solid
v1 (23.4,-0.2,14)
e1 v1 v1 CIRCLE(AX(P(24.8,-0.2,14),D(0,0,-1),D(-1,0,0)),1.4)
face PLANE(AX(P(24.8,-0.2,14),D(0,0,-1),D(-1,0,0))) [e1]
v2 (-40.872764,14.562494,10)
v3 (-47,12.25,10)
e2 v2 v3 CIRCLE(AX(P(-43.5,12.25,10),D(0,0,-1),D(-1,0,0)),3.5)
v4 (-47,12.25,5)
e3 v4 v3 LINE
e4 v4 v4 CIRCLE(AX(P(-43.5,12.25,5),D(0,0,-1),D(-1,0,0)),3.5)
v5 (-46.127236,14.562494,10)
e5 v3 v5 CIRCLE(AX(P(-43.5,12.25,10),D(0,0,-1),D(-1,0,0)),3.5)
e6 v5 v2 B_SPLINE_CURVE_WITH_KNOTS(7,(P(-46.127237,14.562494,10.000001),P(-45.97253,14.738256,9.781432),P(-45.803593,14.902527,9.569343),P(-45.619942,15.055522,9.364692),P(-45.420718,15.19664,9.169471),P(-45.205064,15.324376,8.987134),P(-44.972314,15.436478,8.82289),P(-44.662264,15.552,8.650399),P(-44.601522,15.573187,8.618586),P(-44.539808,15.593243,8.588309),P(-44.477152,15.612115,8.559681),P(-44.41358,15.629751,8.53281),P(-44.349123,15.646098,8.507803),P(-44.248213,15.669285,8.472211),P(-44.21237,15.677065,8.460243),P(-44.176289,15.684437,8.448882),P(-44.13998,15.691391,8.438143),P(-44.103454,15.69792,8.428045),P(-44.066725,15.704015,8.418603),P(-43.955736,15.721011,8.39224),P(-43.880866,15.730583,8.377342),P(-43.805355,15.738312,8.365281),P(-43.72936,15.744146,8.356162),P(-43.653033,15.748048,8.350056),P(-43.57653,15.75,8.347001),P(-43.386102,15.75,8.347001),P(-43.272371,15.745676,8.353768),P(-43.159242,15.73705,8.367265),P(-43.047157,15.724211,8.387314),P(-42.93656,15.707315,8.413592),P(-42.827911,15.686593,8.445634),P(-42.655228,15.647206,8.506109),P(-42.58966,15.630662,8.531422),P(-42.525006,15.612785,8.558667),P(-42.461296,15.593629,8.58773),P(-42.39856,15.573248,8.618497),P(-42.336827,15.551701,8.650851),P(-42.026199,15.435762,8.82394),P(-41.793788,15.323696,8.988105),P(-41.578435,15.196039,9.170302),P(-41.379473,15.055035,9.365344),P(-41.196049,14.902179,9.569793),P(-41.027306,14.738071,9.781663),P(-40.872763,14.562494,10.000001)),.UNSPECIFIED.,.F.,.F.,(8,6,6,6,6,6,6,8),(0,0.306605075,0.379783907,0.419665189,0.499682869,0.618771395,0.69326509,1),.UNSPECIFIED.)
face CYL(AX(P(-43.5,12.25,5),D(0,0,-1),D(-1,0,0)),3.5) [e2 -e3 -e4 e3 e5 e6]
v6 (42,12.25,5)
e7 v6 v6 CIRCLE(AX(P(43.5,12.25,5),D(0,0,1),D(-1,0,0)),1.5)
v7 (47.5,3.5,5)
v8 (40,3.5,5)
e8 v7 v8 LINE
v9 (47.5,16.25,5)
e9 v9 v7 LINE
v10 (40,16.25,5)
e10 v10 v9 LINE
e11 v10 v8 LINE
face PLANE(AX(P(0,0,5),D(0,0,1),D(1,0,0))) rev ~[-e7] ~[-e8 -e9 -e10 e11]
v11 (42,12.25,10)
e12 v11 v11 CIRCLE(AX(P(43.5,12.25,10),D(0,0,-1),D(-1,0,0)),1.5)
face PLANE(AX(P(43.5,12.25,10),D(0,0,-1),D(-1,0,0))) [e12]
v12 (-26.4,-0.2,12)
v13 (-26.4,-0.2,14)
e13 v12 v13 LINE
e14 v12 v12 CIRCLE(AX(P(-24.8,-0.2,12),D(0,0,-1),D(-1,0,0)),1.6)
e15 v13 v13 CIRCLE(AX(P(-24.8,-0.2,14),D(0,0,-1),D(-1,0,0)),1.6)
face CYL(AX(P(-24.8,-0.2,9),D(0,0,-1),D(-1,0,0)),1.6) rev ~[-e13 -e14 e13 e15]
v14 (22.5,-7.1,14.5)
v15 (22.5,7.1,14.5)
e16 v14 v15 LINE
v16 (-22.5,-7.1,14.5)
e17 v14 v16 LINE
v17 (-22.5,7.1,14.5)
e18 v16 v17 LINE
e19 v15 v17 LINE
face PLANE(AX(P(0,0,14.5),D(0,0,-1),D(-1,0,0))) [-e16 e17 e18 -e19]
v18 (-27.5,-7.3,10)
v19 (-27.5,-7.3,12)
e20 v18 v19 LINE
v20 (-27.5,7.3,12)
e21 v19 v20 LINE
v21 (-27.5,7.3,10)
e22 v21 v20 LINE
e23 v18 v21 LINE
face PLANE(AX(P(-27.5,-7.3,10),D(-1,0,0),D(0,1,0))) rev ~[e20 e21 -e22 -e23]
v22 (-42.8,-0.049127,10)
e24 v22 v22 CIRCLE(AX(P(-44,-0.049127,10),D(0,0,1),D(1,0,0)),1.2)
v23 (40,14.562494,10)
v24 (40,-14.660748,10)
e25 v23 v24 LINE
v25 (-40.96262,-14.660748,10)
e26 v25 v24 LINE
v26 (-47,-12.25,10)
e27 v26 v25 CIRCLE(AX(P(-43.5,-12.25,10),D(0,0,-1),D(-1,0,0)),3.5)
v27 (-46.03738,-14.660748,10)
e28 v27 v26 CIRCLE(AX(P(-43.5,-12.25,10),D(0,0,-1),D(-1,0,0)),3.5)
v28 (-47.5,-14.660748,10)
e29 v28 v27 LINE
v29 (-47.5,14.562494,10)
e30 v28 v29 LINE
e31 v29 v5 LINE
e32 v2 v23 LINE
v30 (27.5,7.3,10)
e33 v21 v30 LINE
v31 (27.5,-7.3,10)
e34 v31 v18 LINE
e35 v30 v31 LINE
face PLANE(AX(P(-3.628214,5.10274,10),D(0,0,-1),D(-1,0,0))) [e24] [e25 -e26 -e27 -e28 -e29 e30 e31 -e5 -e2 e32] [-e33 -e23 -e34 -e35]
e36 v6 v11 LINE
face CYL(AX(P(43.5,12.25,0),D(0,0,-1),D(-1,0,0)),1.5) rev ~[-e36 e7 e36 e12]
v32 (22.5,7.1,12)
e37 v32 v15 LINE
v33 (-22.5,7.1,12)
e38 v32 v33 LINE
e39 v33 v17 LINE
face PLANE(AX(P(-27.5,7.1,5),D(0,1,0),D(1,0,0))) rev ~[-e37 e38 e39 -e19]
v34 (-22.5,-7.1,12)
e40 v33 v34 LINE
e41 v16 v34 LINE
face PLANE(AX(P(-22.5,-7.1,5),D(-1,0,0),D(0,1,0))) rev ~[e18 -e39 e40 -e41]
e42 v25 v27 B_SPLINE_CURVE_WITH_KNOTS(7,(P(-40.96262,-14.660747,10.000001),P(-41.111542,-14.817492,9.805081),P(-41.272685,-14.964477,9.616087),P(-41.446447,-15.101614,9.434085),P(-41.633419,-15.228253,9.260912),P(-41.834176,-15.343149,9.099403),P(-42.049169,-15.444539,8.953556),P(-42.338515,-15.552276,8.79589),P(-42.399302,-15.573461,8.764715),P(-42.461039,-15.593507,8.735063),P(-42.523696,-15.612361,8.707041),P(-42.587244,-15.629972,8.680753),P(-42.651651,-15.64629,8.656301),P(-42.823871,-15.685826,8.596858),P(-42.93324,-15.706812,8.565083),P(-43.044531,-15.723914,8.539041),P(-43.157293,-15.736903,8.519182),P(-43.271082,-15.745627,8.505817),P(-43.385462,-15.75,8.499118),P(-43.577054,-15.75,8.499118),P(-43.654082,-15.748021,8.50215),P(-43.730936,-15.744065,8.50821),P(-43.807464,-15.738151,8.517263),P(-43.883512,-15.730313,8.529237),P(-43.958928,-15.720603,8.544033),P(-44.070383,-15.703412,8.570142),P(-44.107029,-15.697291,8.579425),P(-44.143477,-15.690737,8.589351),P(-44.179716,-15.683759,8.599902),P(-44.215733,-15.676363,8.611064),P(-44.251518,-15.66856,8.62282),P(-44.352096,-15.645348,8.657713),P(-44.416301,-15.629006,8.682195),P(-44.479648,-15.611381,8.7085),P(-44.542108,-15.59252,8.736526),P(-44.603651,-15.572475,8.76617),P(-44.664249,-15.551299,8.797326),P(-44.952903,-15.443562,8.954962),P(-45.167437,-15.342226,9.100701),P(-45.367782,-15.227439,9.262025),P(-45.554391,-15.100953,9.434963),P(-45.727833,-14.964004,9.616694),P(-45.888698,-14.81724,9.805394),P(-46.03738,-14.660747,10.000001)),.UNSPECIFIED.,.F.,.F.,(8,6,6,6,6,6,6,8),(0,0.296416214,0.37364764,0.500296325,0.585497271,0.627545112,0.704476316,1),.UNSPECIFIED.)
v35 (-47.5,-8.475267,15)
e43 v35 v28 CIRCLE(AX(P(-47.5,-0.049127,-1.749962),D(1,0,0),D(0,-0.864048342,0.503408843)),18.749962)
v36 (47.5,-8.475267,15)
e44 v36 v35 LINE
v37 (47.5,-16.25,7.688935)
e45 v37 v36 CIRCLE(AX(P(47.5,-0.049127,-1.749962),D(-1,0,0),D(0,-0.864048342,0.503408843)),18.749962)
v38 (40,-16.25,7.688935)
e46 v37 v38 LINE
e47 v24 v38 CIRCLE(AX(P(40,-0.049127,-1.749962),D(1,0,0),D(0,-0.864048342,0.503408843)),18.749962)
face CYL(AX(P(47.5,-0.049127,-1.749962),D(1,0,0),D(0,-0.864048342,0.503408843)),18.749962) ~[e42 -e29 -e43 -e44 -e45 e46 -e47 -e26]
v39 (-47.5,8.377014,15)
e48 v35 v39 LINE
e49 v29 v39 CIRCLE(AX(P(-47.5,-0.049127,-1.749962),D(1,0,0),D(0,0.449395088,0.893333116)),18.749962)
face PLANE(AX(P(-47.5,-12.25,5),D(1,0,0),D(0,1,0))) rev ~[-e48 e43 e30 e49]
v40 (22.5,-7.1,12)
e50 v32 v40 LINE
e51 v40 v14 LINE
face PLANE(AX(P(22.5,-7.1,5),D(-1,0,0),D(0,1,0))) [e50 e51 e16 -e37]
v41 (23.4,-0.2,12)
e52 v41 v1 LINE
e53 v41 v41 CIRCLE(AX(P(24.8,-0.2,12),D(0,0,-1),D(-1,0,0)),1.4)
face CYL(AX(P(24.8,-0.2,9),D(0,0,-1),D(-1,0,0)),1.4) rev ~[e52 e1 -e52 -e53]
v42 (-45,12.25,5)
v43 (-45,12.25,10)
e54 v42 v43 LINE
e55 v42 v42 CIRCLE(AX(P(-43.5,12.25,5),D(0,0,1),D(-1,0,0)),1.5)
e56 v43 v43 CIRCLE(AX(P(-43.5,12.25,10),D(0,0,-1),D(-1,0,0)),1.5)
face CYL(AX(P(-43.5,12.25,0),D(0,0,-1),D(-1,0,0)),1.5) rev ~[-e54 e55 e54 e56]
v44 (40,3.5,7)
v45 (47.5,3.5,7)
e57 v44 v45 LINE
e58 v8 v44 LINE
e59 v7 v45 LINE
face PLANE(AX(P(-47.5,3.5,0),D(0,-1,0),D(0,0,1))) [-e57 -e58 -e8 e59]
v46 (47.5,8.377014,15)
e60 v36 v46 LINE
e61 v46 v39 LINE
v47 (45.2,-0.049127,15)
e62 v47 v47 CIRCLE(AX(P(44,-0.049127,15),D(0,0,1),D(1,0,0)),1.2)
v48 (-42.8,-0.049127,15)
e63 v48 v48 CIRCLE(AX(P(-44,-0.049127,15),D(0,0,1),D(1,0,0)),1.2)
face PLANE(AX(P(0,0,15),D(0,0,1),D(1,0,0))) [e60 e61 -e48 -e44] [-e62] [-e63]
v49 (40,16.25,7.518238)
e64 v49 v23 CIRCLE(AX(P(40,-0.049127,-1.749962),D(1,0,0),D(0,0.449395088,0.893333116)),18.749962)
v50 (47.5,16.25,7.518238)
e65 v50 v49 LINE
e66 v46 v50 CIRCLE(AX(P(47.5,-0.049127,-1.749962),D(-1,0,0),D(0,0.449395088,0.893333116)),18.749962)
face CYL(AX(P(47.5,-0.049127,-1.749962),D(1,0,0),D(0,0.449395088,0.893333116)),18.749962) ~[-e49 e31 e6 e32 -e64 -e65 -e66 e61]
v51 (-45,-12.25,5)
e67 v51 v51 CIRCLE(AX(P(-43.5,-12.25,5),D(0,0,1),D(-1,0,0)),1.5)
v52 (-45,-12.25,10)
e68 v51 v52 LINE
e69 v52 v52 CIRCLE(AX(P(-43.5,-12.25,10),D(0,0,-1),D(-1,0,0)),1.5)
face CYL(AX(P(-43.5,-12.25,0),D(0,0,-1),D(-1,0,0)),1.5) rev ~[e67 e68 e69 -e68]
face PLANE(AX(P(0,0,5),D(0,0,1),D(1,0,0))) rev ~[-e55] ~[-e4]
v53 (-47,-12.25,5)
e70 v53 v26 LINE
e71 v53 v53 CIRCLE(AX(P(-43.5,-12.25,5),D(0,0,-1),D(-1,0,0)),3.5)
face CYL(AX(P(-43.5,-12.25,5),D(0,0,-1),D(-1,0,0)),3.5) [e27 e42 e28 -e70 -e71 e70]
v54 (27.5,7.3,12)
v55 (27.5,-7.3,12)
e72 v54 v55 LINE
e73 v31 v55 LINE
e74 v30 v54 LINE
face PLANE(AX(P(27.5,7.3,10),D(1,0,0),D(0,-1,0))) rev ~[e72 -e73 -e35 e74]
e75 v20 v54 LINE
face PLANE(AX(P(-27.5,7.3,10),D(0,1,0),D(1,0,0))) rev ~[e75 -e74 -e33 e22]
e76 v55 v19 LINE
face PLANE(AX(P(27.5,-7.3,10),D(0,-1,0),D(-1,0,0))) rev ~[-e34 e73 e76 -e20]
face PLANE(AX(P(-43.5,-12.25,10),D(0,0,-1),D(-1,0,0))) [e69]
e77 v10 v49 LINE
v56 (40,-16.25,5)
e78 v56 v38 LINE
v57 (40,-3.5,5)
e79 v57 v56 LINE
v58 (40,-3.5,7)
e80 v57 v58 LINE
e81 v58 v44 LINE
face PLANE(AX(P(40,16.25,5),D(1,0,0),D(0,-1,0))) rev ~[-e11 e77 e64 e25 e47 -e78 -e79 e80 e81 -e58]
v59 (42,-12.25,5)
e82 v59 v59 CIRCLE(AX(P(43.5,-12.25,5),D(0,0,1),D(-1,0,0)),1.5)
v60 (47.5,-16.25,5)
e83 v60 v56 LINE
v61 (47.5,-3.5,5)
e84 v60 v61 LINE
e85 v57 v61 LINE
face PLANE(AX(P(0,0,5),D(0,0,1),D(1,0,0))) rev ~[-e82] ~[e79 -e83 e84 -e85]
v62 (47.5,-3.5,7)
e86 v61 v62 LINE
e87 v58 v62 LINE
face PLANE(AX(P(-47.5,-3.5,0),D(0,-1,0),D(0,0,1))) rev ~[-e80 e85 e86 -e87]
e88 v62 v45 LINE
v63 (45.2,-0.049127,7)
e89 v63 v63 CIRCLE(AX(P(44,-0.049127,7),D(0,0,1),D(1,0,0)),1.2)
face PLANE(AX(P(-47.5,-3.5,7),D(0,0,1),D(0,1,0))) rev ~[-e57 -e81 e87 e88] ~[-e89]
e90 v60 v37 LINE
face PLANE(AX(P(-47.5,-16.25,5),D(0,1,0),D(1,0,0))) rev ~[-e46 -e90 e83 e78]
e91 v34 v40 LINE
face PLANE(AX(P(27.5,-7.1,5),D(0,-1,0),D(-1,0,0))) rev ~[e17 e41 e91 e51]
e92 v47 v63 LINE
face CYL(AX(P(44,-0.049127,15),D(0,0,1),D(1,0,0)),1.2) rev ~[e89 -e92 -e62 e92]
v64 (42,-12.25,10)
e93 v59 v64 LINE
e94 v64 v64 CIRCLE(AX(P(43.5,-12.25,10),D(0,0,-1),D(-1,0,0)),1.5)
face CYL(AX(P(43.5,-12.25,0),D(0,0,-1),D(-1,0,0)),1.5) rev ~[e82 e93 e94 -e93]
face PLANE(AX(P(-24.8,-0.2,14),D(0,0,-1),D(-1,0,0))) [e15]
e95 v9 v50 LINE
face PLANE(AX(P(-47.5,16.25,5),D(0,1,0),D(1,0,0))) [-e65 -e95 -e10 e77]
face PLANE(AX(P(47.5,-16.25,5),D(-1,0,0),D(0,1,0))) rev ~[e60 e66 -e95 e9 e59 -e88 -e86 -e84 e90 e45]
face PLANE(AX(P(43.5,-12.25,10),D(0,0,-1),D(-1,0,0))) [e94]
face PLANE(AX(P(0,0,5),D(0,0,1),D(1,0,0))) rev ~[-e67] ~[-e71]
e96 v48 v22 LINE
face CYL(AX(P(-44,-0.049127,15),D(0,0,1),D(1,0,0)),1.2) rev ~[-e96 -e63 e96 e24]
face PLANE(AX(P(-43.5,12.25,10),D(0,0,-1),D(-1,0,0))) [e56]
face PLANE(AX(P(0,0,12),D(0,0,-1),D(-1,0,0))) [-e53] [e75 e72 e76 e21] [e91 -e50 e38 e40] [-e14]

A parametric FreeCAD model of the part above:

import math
import FreeCAD as App
import Part
import Sketcher
from FreeCAD import Vector

doc = App.newDocument("Part")
body = doc.addObject("PartDesign::Body", "Body")

sketch1 = body.newObject("Sketcher::SketchObject", "Sketch")
sketch1.AttachmentSupport = (doc.getObject("XY_Plane"), [""])
sketch1.MapMode = "FlatFace"
sketch1.addGeometry([
    Part.Circle(Vector(-43.5, -12.25, 0), Vector(0, 0, 1), 4),
    Part.Circle(Vector(-43.5, -12.25, 0), Vector(0, 0, 1), 1.5),
], False)
sketch1.addConstraint([
    Sketcher.Constraint("Coincident", 1, 3, 0, 3),
    Sketcher.Constraint("Diameter", 0, 8.0),
    Sketcher.Constraint("Diameter", 1, 3.0),
    Sketcher.Constraint("DistanceX", 0, 3, -1, 1, 43.5),
    Sketcher.Constraint("DistanceY", 0, 3, -1, 1, 12.25),
])
pad1 = body.newObject("PartDesign::Pad", "Pad")
pad1.Profile = sketch1
pad1.Length = 5
body2 = doc.addObject("PartDesign::Body", "Body001")

sketch2 = body2.newObject("Sketcher::SketchObject", "Sketch001")
sketch2.AttachmentSupport = (doc.getObject("XY_Plane001"), [""])
sketch2.MapMode = "FlatFace"
sketch2.addGeometry([
    Part.Circle(Vector(-43.5, 12.25, 0), Vector(0, 0, 1), 4),
    Part.Circle(Vector(-43.5, 12.25, 0), Vector(0, 0, 1), 1.5),
], False)
sketch2.addConstraint([
    Sketcher.Constraint("Coincident", 1, 3, 0, 3),
    Sketcher.Constraint("Diameter", 0, 8.0),
    Sketcher.Constraint("Diameter", 1, 3.0),
    Sketcher.Constraint("DistanceX", 0, 3, -1, 1, 43.5),
    Sketcher.Constraint("DistanceY", -1, 1, 0, 3, 12.25),
])
pad2 = body2.newObject("PartDesign::Pad", "Pad001")
pad2.Profile = sketch2
pad2.Length = 5
body3 = doc.addObject("PartDesign::Body", "Body002")

sketch3 = body3.newObject("Sketcher::SketchObject", "Sketch002")
sketch3.AttachmentSupport = (doc.getObject("XY_Plane002"), [""])
sketch3.MapMode = "FlatFace"
sketch3.addGeometry([
    Part.Circle(Vector(43.5, -12.25, 0), Vector(0, 0, 1), 4),
    Part.Circle(Vector(43.5, -12.25, 0), Vector(0, 0, 1), 1.5),
], False)
sketch3.addConstraint([
    Sketcher.Constraint("Coincident", 1, 3, 0, 3),
    Sketcher.Constraint("Diameter", 0, 8.0),
    Sketcher.Constraint("Diameter", 1, 3.0),
    Sketcher.Constraint("DistanceX", -1, 1, 0, 3, 43.5),
    Sketcher.Constraint("DistanceY", 0, 3, -1, 1, 12.25),
])
pad3 = body3.newObject("PartDesign::Pad", "Pad002")
pad3.Profile = sketch3
pad3.Length = 5
body4 = doc.addObject("PartDesign::Body", "Body003")

sketch4 = body4.newObject("Sketcher::SketchObject", "Sketch003")
sketch4.AttachmentSupport = (doc.getObject("XY_Plane003"), [""])
sketch4.MapMode = "FlatFace"
sketch4.addGeometry([
    Part.Circle(Vector(43.5, 12.25, 0), Vector(0, 0, 1), 4),
    Part.Circle(Vector(43.5, 12.25, 0), Vector(0, 0, 1), 1.5),
], False)
sketch4.addConstraint([
    Sketcher.Constraint("Coincident", 1, 3, 0, 3),
    Sketcher.Constraint("Diameter", 0, 8.0),
    Sketcher.Constraint("Diameter", 1, 3.0),
    Sketcher.Constraint("DistanceX", -1, 1, 0, 3, 43.5),
    Sketcher.Constraint("DistanceY", -1, 1, 0, 3, 12.25),
])
pad4 = body4.newObject("PartDesign::Pad", "Pad003")
pad4.Profile = sketch4
pad4.Length = 5
body.AllowCompound = True
doc.recompute()

boolean = body.newObject("PartDesign::Boolean", "Boolean")
boolean.Type = "Fuse"
boolean.addObjects([body2])
doc.recompute()

boolean2 = body.newObject("PartDesign::Boolean", "Boolean001")
boolean2.Type = "Fuse"
boolean2.addObjects([body3])
doc.recompute()

boolean3 = body.newObject("PartDesign::Boolean", "Boolean002")
boolean3.Type = "Fuse"
boolean3.addObjects([body4])

sketch5 = body.newObject("Sketcher::SketchObject", "Sketch004")
sketch5.AttachmentSupport = (doc.getObject("XY_Plane"), [""])
sketch5.MapMode = "FlatFace"
sketch5.AttachmentOffset = App.Placement(Vector(0, 0, 5), App.Rotation())
sketch5.addGeometry([
    Part.LineSegment(Vector(-47.5, 16.25, 0), Vector(-47.5, -16.25, 0)),
    Part.LineSegment(Vector(-47.5, -16.25, 0), Vector(47.5, -16.25, 0)),
    Part.LineSegment(Vector(47.5, -16.25, 0), Vector(47.5, 16.25, 0)),
    Part.LineSegment(Vector(47.5, 16.25, 0), Vector(-47.5, 16.25, 0)),
], False)
sketch5.addConstraint([
    Sketcher.Constraint("Coincident", 0, 2, 1, 1),
    Sketcher.Constraint("Coincident", 1, 2, 2, 1),
    Sketcher.Constraint("Coincident", 2, 2, 3, 1),
    Sketcher.Constraint("Coincident", 3, 2, 0, 1),
    Sketcher.Constraint("Vertical", 0),
    Sketcher.Constraint("Horizontal", 1),
    Sketcher.Constraint("Vertical", 2),
    Sketcher.Constraint("Horizontal", 3),
    Sketcher.Constraint("Symmetric", 0, 2, 2, 2, -1, 1),
    Sketcher.Constraint("DistanceX", 1, 1, 1, 2, 95.0),
    Sketcher.Constraint("DistanceY", 0, 2, 0, 1, 32.5),
])
pad5 = body.newObject("PartDesign::Pad", "Pad004")
pad5.Profile = sketch5
pad5.Length = 10

sketch6 = body.newObject("Sketcher::SketchObject", "Sketch005")
sketch6.AttachmentSupport = (doc.getObject("XY_Plane"), [""])
sketch6.MapMode = "FlatFace"
sketch6.AttachmentOffset = App.Placement(Vector(0, 0, 5), App.Rotation())
sketch6.addGeometry([
    Part.LineSegment(Vector(22.5, 7.1, 0), Vector(22.5, -7.1, 0)),
    Part.LineSegment(Vector(22.5, -7.1, 0), Vector(-22.5, -7.1, 0)),
    Part.LineSegment(Vector(-22.5, -7.1, 0), Vector(-22.5, 7.1, 0)),
    Part.LineSegment(Vector(-22.5, 7.1, 0), Vector(22.5, 7.1, 0)),
], False)
sketch6.addConstraint([
    Sketcher.Constraint("Coincident", 0, 2, 1, 1),
    Sketcher.Constraint("Coincident", 1, 2, 2, 1),
    Sketcher.Constraint("Coincident", 2, 2, 3, 1),
    Sketcher.Constraint("Coincident", 3, 2, 0, 1),
    Sketcher.Constraint("Vertical", 0),
    Sketcher.Constraint("Horizontal", 1),
    Sketcher.Constraint("Vertical", 2),
    Sketcher.Constraint("Horizontal", 3),
    Sketcher.Constraint("Symmetric", 0, 2, 2, 2, -1, 1),
    Sketcher.Constraint("DistanceX", 1, 2, 1, 1, 45.0),
    Sketcher.Constraint("DistanceY", 0, 2, 0, 1, 14.2),
])
pocket1 = body.newObject("PartDesign::Pocket", "Pocket")
pocket1.Profile = sketch6
pocket1.Length = 9
pocket1.Reversed = True

sketch7 = body.newObject("Sketcher::SketchObject", "Sketch006")
sketch7.AttachmentSupport = (doc.getObject("XY_Plane"), [""])
sketch7.MapMode = "FlatFace"
sketch7.AttachmentOffset = App.Placement(Vector(0, 0, 5), App.Rotation())
sketch7.addGeometry([
    Part.LineSegment(Vector(27.5, 7.1, 0), Vector(27.5, -7.1, 0)),
    Part.LineSegment(Vector(27.5, -7.1, 0), Vector(-27.5, -7.1, 0)),
    Part.LineSegment(Vector(-27.5, -7.1, 0), Vector(-27.5, 7.1, 0)),
    Part.LineSegment(Vector(-27.5, 7.1, 0), Vector(27.5, 7.1, 0)),
], False)
sketch7.addConstraint([
    Sketcher.Constraint("Coincident", 0, 2, 1, 1),
    Sketcher.Constraint("Coincident", 1, 2, 2, 1),
    Sketcher.Constraint("Coincident", 2, 2, 3, 1),
    Sketcher.Constraint("Coincident", 3, 2, 0, 1),
    Sketcher.Constraint("Vertical", 0),
    Sketcher.Constraint("Horizontal", 1),
    Sketcher.Constraint("Vertical", 2),
    Sketcher.Constraint("Horizontal", 3),
    Sketcher.Constraint("Symmetric", 0, 2, 2, 2, -1, 1),
    Sketcher.Constraint("DistanceX", 1, 2, 1, 1, 55.0),
    Sketcher.Constraint("DistanceY", 0, 2, 0, 1, 14.2),
])
pocket2 = body.newObject("PartDesign::Pocket", "Pocket001")
pocket2.Profile = sketch7
pocket2.Length = 4
pocket2.Reversed = True

sketch8 = body.newObject("Sketcher::SketchObject", "Sketch007")
sketch8.AttachmentSupport = (doc.getObject("XY_Plane"), [""])
sketch8.MapMode = "FlatFace"
sketch8.AttachmentOffset = App.Placement(Vector(0, 0, 9), App.Rotation())
sketch8.addGeometry([
    Part.Circle(Vector(24.8, -0.2, 0), Vector(0, 0, 1), 1.4),
    Part.Circle(Vector(-24.8, -0.2, 0), Vector(0, 0, 1), 1.6),
], False)
sketch8.addConstraint([
    Sketcher.Constraint("Symmetric", 0, 3, 1, 3, -2),
    Sketcher.Constraint("Diameter", 0, 2.8),
    Sketcher.Constraint("Diameter", 1, 3.2),
    Sketcher.Constraint("DistanceX", -1, 1, 0, 3, 24.8),
    Sketcher.Constraint("DistanceY", 0, 3, -1, 1, 0.2),
])
pocket3 = body.newObject("PartDesign::Pocket", "Pocket002")
pocket3.Profile = sketch8
pocket3.Length = 5
pocket3.Reversed = True

sketch9 = body.newObject("Sketcher::SketchObject", "Sketch008")
sketch9.AttachmentSupport = (doc.getObject("XY_Plane"), [""])
sketch9.MapMode = "FlatFace"
sketch9.AttachmentOffset = App.Placement(Vector(0, 0, 5), App.Rotation())
sketch9.addGeometry([
    Part.ArcOfCircle(Part.Circle(Vector(-43.5, 12.25, 0), Vector(0, 0, 1), 4), math.radians(180), math.radians(360)),
    Part.LineSegment(Vector(-39.5, 12.25, 0), Vector(-39.5, -12.25, 0)),
    Part.ArcOfCircle(Part.Circle(Vector(-43.5, -12.25, 0), Vector(0, 0, 1), 4), math.radians(0), math.radians(180)),
    Part.LineSegment(Vector(-47.5, -12.25, 0), Vector(-47.5, 12.25, 0)),
    Part.ArcOfCircle(Part.Circle(Vector(43.5, 12.25, 0), Vector(0, 0, 1), 4), math.radians(180), math.radians(360)),
    Part.LineSegment(Vector(47.5, 12.25, 0), Vector(47.5, -12.25, 0)),
    Part.ArcOfCircle(Part.Circle(Vector(43.5, -12.25, 0), Vector(0, 0, 1), 4), math.radians(0), math.radians(180)),
    Part.LineSegment(Vector(39.5, -12.25, 0), Vector(39.5, 12.25, 0)),
], False)
sketch9.addConstraint([
    Sketcher.Constraint("Tangent", 0, 2, 1, 1),
    Sketcher.Constraint("Tangent", 1, 2, 2, 1),
    Sketcher.Constraint("Tangent", 2, 2, 3, 1),
    Sketcher.Constraint("Tangent", 3, 2, 0, 1),
    Sketcher.Constraint("Tangent", 4, 2, 5, 1),
    Sketcher.Constraint("Tangent", 5, 2, 6, 1),
    Sketcher.Constraint("Tangent", 6, 2, 7, 1),
    Sketcher.Constraint("Tangent", 7, 2, 4, 1),
    Sketcher.Constraint("Vertical", 1),
    Sketcher.Constraint("Vertical", 3),
    Sketcher.Constraint("Vertical", 5),
    Sketcher.Constraint("Vertical", 7),
    Sketcher.Constraint("Equal", 2, 4),
    Sketcher.Constraint("Symmetric", 2, 3, 4, 3, -1, 1),
    Sketcher.Constraint("Horizontal", 0, 3, 4, 3),
    Sketcher.Constraint("Horizontal", 2, 3, 6, 3),
    Sketcher.Constraint("Radius", 0, 4.0),
    Sketcher.Constraint("DistanceY", 1, 2, 1, 1, 24.5),
    Sketcher.Constraint("DistanceX", 0, 3, 4, 3, 87.0),
])
pad6 = body.newObject("PartDesign::Pad", "Pad005")
pad6.Profile = sketch9
pad6.Length = 5
pad6.Reversed = True

sketch10 = body.newObject("Sketcher::SketchObject", "Sketch009")
sketch10.AttachmentSupport = (doc.getObject("YZ_Plane"), [""])
sketch10.MapMode = "FlatFace"
sketch10.AttachmentOffset = App.Placement(Vector(0, 0, 47.5), App.Rotation())
sketch10.addGeometry([
    Part.ArcOfCircle(Part.Circle(Vector(-0.049127, -1.749962, 0), Vector(0, 0, 1), 18.749962), math.radians(29.623933), math.radians(63.29512)),
    Part.LineSegment(Vector(16.25, 7.518238, 0), Vector(16.25, 15, 0)),
    Part.LineSegment(Vector(16.25, 15, 0), Vector(8.377014, 15, 0)),
    Part.LineSegment(Vector(-16.25, 15, 0), Vector(-16.25, 7.688935, 0)),
    Part.ArcOfCircle(Part.Circle(Vector(-0.049127, -1.749962, 0), Vector(0, 0, 1), 18.749962), math.radians(116.70488), math.radians(149.774215)),
    Part.LineSegment(Vector(-8.475267, 15, 0), Vector(-16.25, 15, 0)),
], False)
sketch10.addConstraint([
    Sketcher.Constraint("Coincident", 0, 1, 1, 1),
    Sketcher.Constraint("Coincident", 1, 2, 2, 1),
    Sketcher.Constraint("Coincident", 2, 2, 0, 2),
    Sketcher.Constraint("Coincident", 3, 2, 4, 2),
    Sketcher.Constraint("Coincident", 4, 1, 5, 1),
    Sketcher.Constraint("Coincident", 5, 2, 3, 1),
    Sketcher.Constraint("Vertical", 1),
    Sketcher.Constraint("Horizontal", 2),
    Sketcher.Constraint("Vertical", 3),
    Sketcher.Constraint("Horizontal", 5),
    Sketcher.Constraint("Coincident", 4, 3, 0, 3),
    Sketcher.Constraint("Equal", 0, 4),
    Sketcher.Constraint("Symmetric", 1, 2, 5, 2, -2),
    Sketcher.Constraint("DistanceY", -1, 1, 1, 2, 15.0),
    Sketcher.Constraint("DistanceX", 3, 2, 0, 1, 32.5),
    Sketcher.Constraint("Radius", 0, 18.749962),
    Sketcher.Constraint("DistanceY", 1, 1, 1, 2, 7.481762),
    Sketcher.Constraint("DistanceY", 4, 3, 0, 1, 9.2682),
])
pocket4 = body.newObject("PartDesign::Pocket", "Pocket003")
pocket4.Profile = sketch10
pocket4.Type = "ThroughAll"

sketch11 = body.newObject("Sketcher::SketchObject", "Sketch010")
sketch11.AttachmentSupport = (doc.getObject("YZ_Plane"), [""])
sketch11.MapMode = "FlatFace"
sketch11.AttachmentOffset = App.Placement(Vector(0, 0, -47.5), App.Rotation())
sketch11.addGeometry([
    Part.LineSegment(Vector(3.5, 0, 0), Vector(-3.5, 0, 0)),
    Part.LineSegment(Vector(-3.5, 0, 0), Vector(-3.5, 7, 0)),
    Part.LineSegment(Vector(-3.5, 7, 0), Vector(3.5, 7, 0)),
    Part.LineSegment(Vector(3.5, 7, 0), Vector(3.5, 0, 0)),
], False)
sketch11.addConstraint([
    Sketcher.Constraint("Coincident", 0, 2, 1, 1),
    Sketcher.Constraint("Coincident", 1, 2, 2, 1),
    Sketcher.Constraint("Coincident", 2, 2, 3, 1),
    Sketcher.Constraint("Coincident", 3, 2, 0, 1),
    Sketcher.Constraint("Horizontal", 0),
    Sketcher.Constraint("Vertical", 1),
    Sketcher.Constraint("Horizontal", 2),
    Sketcher.Constraint("Vertical", 3),
    Sketcher.Constraint("Symmetric", 0, 2, 3, 2, -1, 1),
    Sketcher.Constraint("Equal", 2, 1),
    Sketcher.Constraint("DistanceX", 0, 2, 0, 1, 7.0),
])
pocket5 = body.newObject("PartDesign::Pocket", "Pocket004")
pocket5.Profile = sketch11
pocket5.Type = "ThroughAll"
pocket5.Reversed = True

sketch12 = body.newObject("Sketcher::SketchObject", "Sketch011")
sketch12.AttachmentSupport = (doc.getObject("XY_Plane"), [""])
sketch12.MapMode = "FlatFace"
sketch12.AttachmentOffset = App.Placement(Vector(0, 0, 15), App.Rotation())
sketch12.addGeometry([
    Part.Circle(Vector(-44, -0.049127, 0), Vector(0, 0, 1), 1.2),
    Part.Circle(Vector(44, -0.049127, 0), Vector(0, 0, 1), 1.2),
], False)
sketch12.addConstraint([
    Sketcher.Constraint("Equal", 0, 1),
    Sketcher.Constraint("Symmetric", 0, 3, 1, 3, -2),
    Sketcher.Constraint("Diameter", 0, 2.4),
    Sketcher.Constraint("DistanceX", 0, 3, -1, 1, 44.0),
    Sketcher.Constraint("DistanceY", 0, 3, -1, 1, 0.049127),
])
pocket6 = body.newObject("PartDesign::Pocket", "Pocket005")
pocket6.Profile = sketch12
pocket6.Type = "ThroughAll"

sketch13 = body.newObject("Sketcher::SketchObject", "Sketch012")
sketch13.AttachmentSupport = (doc.getObject("XY_Plane"), [""])
sketch13.MapMode = "FlatFace"
sketch13.addGeometry([
    Part.Circle(Vector(43.5, 12.25, 0), Vector(0, 0, 1), 1.5),
    Part.Circle(Vector(43.5, -12.25, 0), Vector(0, 0, 1), 1.5),
    Part.Circle(Vector(-43.5, 12.25, 0), Vector(0, 0, 1), 1.5),
    Part.Circle(Vector(-43.5, -12.25, 0), Vector(0, 0, 1), 1.5),
], False)
sketch13.addConstraint([
    Sketcher.Constraint("Equal", 0, 1),
    Sketcher.Constraint("Equal", 1, 2),
    Sketcher.Constraint("Equal", 2, 3),
    Sketcher.Constraint("Symmetric", 1, 3, 2, 3, -1, 1),
    Sketcher.Constraint("Symmetric", 0, 3, 3, 3, -1, 1),
    Sketcher.Constraint("Symmetric", 0, 3, 2, 3, -2),
    Sketcher.Constraint("Diameter", 0, 3.0),
    Sketcher.Constraint("DistanceX", 2, 3, 0, 3, 87.0),
    Sketcher.Constraint("DistanceY", 1, 3, 0, 3, 24.5),
])
pocket7 = body.newObject("PartDesign::Pocket", "Pocket006")
pocket7.Profile = sketch13
pocket7.Length = 10
pocket7.Reversed = True

sketch14 = body.newObject("Sketcher::SketchObject", "Sketch013")
sketch14.AttachmentSupport = (doc.getObject("XY_Plane"), [""])
sketch14.MapMode = "FlatFace"
sketch14.addGeometry([
    Part.LineSegment(Vector(47.5, 16.25, 0), Vector(47.5, -16.25, 0)),
    Part.LineSegment(Vector(47.5, -16.25, 0), Vector(-47.5, -16.25, 0)),
    Part.LineSegment(Vector(-47.5, -16.25, 0), Vector(-47.5, 16.25, 0)),
    Part.LineSegment(Vector(-47.5, 16.25, 0), Vector(47.5, 16.25, 0)),
], False)
sketch14.addConstraint([
    Sketcher.Constraint("Coincident", 0, 2, 1, 1),
    Sketcher.Constraint("Coincident", 1, 2, 2, 1),
    Sketcher.Constraint("Coincident", 2, 2, 3, 1),
    Sketcher.Constraint("Coincident", 3, 2, 0, 1),
    Sketcher.Constraint("Vertical", 0),
    Sketcher.Constraint("Horizontal", 1),
    Sketcher.Constraint("Vertical", 2),
    Sketcher.Constraint("Horizontal", 3),
    Sketcher.Constraint("Symmetric", 0, 2, 2, 2, -1, 1),
    Sketcher.Constraint("DistanceX", 1, 2, 1, 1, 95.0),
    Sketcher.Constraint("DistanceY", 0, 2, 0, 1, 32.5),
])
pocket8 = body.newObject("PartDesign::Pocket", "Pocket007")
pocket8.Profile = sketch14
pocket8.Length = 5
pocket8.Reversed = True

sketch15 = body.newObject("Sketcher::SketchObject", "Sketch014")
sketch15.AttachmentSupport = (doc.getObject("XY_Plane"), [""])
sketch15.MapMode = "FlatFace"
sketch15.AttachmentOffset = App.Placement(Vector(0, 0, 5), App.Rotation())
sketch15.addGeometry([
    Part.LineSegment(Vector(40, 16.25, 0), Vector(40, -16.25, 0)),
    Part.LineSegment(Vector(40, -16.25, 0), Vector(-47.5, -16.25, 0)),
    Part.LineSegment(Vector(-47.5, -16.25, 0), Vector(-47.5, 16.25, 0)),
    Part.LineSegment(Vector(-47.5, 16.25, 0), Vector(40, 16.25, 0)),
    Part.Circle(Vector(-43.5, -12.25, 0), Vector(0, 0, 1), 3.5),
    Part.Circle(Vector(-43.5, 12.25, 0), Vector(0, 0, 1), 3.5),
], False)
sketch15.addConstraint([
    Sketcher.Constraint("Coincident", 0, 2, 1, 1),
    Sketcher.Constraint("Coincident", 1, 2, 2, 1),
    Sketcher.Constraint("Coincident", 2, 2, 3, 1),
    Sketcher.Constraint("Coincident", 3, 2, 0, 1),
    Sketcher.Constraint("Vertical", 0),
    Sketcher.Constraint("Horizontal", 1),
    Sketcher.Constraint("Vertical", 2),
    Sketcher.Constraint("Horizontal", 3),
    Sketcher.Constraint("Equal", 4, 5),
    Sketcher.Constraint("Symmetric", 4, 3, 5, 3, -1),
    Sketcher.Constraint("Diameter", 4, 7.0),
    Sketcher.Constraint("DistanceX", 1, 2, 1, 1, 87.5),
    Sketcher.Constraint("DistanceY", 0, 2, 0, 1, 32.5),
    Sketcher.Constraint("DistanceX", -1, 1, 0, 2, 40.0),
    Sketcher.Constraint("DistanceY", 0, 2, 4, 3, 4.0),
    Sketcher.Constraint("DistanceX", 1, 2, 4, 3, 4.0),
    Sketcher.Constraint("DistanceY", 5, 3, 2, 2, 4.0),
])
pocket9 = body.newObject("PartDesign::Pocket", "Pocket008")
pocket9.Profile = sketch15
pocket9.Length = 5
pocket9.Reversed = True

sketch16 = body.newObject("Sketcher::SketchObject", "Sketch015")
sketch16.AttachmentSupport = (doc.getObject("XY_Plane"), [""])
sketch16.MapMode = "FlatFace"
sketch16.AttachmentOffset = App.Placement(Vector(0, 0, 14), App.Rotation())
sketch16.addGeometry([
    Part.LineSegment(Vector(22.5, 7.1, 0), Vector(22.5, -7.1, 0)),
    Part.LineSegment(Vector(22.5, -7.1, 0), Vector(-22.5, -7.1, 0)),
    Part.LineSegment(Vector(-22.5, -7.1, 0), Vector(-22.5, 7.1, 0)),
    Part.LineSegment(Vector(-22.5, 7.1, 0), Vector(22.5, 7.1, 0)),
], False)
sketch16.addConstraint([
    Sketcher.Constraint("Coincident", 0, 2, 1, 1),
    Sketcher.Constraint("Coincident", 1, 2, 2, 1),
    Sketcher.Constraint("Coincident", 2, 2, 3, 1),
    Sketcher.Constraint("Coincident", 3, 2, 0, 1),
    Sketcher.Constraint("Vertical", 0),
    Sketcher.Constraint("Horizontal", 1),
    Sketcher.Constraint("Vertical", 2),
    Sketcher.Constraint("Horizontal", 3),
    Sketcher.Constraint("Symmetric", 0, 2, 2, 2, -1, 1),
    Sketcher.Constraint("DistanceX", 1, 2, 1, 1, 45.0),
    Sketcher.Constraint("DistanceY", 0, 2, 0, 1, 14.2),
])
pocket10 = body.newObject("PartDesign::Pocket", "Pocket009")
pocket10.Profile = sketch16
pocket10.Length = 0.5
pocket10.Reversed = True

sketch17 = body.newObject("Sketcher::SketchObject", "Sketch016")
sketch17.AttachmentSupport = (doc.getObject("XY_Plane"), [""])
sketch17.MapMode = "FlatFace"
sketch17.AttachmentOffset = App.Placement(Vector(0, 0, 10), App.Rotation())
sketch17.addGeometry([
    Part.LineSegment(Vector(27.5, 7.3, 0), Vector(27.5, -7.3, 0)),
    Part.LineSegment(Vector(27.5, -7.3, 0), Vector(-27.5, -7.3, 0)),
    Part.LineSegment(Vector(-27.5, -7.3, 0), Vector(-27.5, 7.3, 0)),
    Part.LineSegment(Vector(-27.5, 7.3, 0), Vector(27.5, 7.3, 0)),
    Part.Circle(Vector(24.8, -0.2, 0), Vector(0, 0, 1), 1.4),
    Part.Circle(Vector(-24.8, -0.2, 0), Vector(0, 0, 1), 1.6),
], False)
sketch17.addConstraint([
    Sketcher.Constraint("Coincident", 0, 2, 1, 1),
    Sketcher.Constraint("Coincident", 1, 2, 2, 1),
    Sketcher.Constraint("Coincident", 2, 2, 3, 1),
    Sketcher.Constraint("Coincident", 3, 2, 0, 1),
    Sketcher.Constraint("Vertical", 0),
    Sketcher.Constraint("Horizontal", 1),
    Sketcher.Constraint("Vertical", 2),
    Sketcher.Constraint("Horizontal", 3),
    Sketcher.Constraint("Symmetric", 0, 2, 2, 2, -1, 1),
    Sketcher.Constraint("Symmetric", 4, 3, 5, 3, -2),
    Sketcher.Constraint("Diameter", 4, 2.8),
    Sketcher.Constraint("Diameter", 5, 3.2),
    Sketcher.Constraint("DistanceX", 1, 2, 1, 1, 55.0),
    Sketcher.Constraint("DistanceY", 0, 2, 0, 1, 14.6),
    Sketcher.Constraint("DistanceX", -1, 1, 4, 3, 24.8),
    Sketcher.Constraint("DistanceY", 4, 3, -1, 1, 0.2),
])
pocket11 = body.newObject("PartDesign::Pocket", "Pocket010")
pocket11.Profile = sketch17
pocket11.Length = 2
pocket11.Reversed = True

doc.recompute()
